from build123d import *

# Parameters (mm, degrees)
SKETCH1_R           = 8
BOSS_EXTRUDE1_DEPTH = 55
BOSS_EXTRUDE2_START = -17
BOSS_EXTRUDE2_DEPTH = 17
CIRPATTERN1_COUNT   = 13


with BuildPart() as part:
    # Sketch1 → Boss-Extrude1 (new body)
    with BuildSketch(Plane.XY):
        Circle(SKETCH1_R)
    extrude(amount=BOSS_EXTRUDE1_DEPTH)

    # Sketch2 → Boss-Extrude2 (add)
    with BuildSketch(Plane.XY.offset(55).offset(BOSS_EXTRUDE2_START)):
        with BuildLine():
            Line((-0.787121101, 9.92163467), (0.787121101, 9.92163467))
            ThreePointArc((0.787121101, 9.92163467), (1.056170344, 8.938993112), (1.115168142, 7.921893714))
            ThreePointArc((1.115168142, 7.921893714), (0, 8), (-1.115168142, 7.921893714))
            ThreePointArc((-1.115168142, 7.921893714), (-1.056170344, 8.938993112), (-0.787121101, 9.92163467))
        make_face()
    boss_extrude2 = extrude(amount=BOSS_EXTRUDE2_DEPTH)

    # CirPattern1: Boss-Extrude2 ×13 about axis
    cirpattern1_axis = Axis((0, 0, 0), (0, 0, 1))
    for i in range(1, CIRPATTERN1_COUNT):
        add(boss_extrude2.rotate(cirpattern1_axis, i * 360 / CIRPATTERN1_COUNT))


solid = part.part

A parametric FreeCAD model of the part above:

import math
import FreeCAD as App
import Part
import Sketcher
Q = App.Units.Quantity

doc = App.newDocument("Part")
body = doc.addObject("PartDesign::Body", "Body")

# Sketch on XY plane
sketch1 = body.newObject("Sketcher::SketchObject", "Sketch")
sketch1.AttachmentSupport = (doc.getObject("XY_Plane"), [""])
sketch1.MapMode = "FlatFace"
sketch1.addGeometry(Part.Circle(App.Vector(0, 0, 0), App.Vector(0, 0, 1), 8), False)
sketch1.addConstraint([
    Sketcher.Constraint("Coincident", 0, 3, -1, 1),
    Sketcher.Constraint("Diameter", 0, Q("16 mm")),
])
pad1 = body.newObject("PartDesign::Pad", "Pad")
pad1.Profile = sketch1
pad1.Length = 55

# Sketch on XY plane
sketch2 = body.newObject("Sketcher::SketchObject", "Sketch001")
sketch2.AttachmentSupport = (doc.getObject("XY_Plane"), [""])
sketch2.MapMode = "FlatFace"
sketch2.AttachmentOffset = App.Placement(App.Vector(0, 0, 38), App.Rotation())
sketch2.addGeometry([
    Part.LineSegment(App.Vector(0.8, 9.9, 0), App.Vector(-0.8, 9.9, 0)),
    Part.ArcOfCircle(Part.Circle(App.Vector(3.8, 8.1, 0), App.Vector(0, 0, 1), 4.9), math.radians(159), math.radians(183)),
    Part.ArcOfCircle(Part.Circle(App.Vector(0, 0, 0), App.Vector(0, 0, 1), 8), math.radians(81.99), math.radians(98.01)),
    Part.ArcOfCircle(Part.Circle(App.Vector(-3.8, 8.1, 0), App.Vector(0, 0, 1), 4.9), math.radians(-3), math.radians(21)),
], False)
sketch2.addConstraint([
    Sketcher.Constraint("Coincident", 0, 2, 1, 1),
    Sketcher.Constraint("Coincident", 1, 2, 2, 2),
    Sketcher.Constraint("Coincident", 2, 1, 3, 1),
    Sketcher.Constraint("Coincident", 3, 2, 0, 1),
    Sketcher.Constraint("Horizontal", 0),
    Sketcher.Constraint("Coincident", 2, 3, -1, 1),
    Sketcher.Constraint("Equal", 1, 3),
    Sketcher.Constraint("Symmetric", 1, 3, 3, 3, -2),
    Sketcher.Constraint("Radius", 2, Q("8 mm")),
    Sketcher.Constraint("Radius", 1, Q("4.876336 mm")),
    Sketcher.Constraint("DistanceX", 0, 2, 0, 1, Q("1.574242 mm")),
    Sketcher.Constraint("DistanceX", 1, 2, -1, 1, Q("1.115168 mm")),
    Sketcher.Constraint("DistanceX", 0, 2, 1, 3, Q("4.542969 mm")),
])
pad2 = body.newObject("PartDesign::Pad", "Pad001")
pad2.Profile = sketch2
pad2.Length = 17
doc.recompute()

polarpattern = body.newObject("PartDesign::PolarPattern", "PolarPattern")
polarpattern.Originals = [pad2]
polarpattern.Axis = (doc.getObject("Z_Axis"), [""])
polarpattern.Angle = 360
polarpattern.Occurrences = 13
body.Tip = polarpattern

doc.recompute()
